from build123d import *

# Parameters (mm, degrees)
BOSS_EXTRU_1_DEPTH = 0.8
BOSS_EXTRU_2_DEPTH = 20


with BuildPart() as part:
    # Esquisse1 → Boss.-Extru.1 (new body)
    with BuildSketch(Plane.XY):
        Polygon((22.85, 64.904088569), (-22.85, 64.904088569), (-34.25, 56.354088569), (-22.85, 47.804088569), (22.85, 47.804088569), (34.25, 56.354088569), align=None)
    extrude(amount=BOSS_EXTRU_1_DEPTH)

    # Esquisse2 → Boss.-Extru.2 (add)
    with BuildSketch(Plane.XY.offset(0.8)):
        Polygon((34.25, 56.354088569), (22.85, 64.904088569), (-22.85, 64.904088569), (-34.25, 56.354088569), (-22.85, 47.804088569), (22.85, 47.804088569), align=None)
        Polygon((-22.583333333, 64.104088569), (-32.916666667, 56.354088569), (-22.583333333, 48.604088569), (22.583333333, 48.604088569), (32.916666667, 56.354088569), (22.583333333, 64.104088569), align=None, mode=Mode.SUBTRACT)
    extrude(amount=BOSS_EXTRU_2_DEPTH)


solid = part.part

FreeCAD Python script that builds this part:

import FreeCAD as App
import Part
import Sketcher
from FreeCAD import Vector
Q = App.Units.Quantity


def add_polygon(sketch, points):
    """Adds a closed chain of lines whose ends are joined by coincident constraints."""
    first, n = sketch.GeometryCount, len(points)
    for a, b in zip(points, points[1:] + points[:1]):
        sketch.addGeometry(Part.LineSegment(App.Vector(*a, 0), App.Vector(*b, 0)), False)
    for i in range(n):
        sketch.addConstraint(Sketcher.Constraint("Coincident", first + i, 2, first + (i + 1) % n, 1))

doc = App.newDocument("Part")
body = doc.addObject("PartDesign::Body", "Body")

# Sketch on XY plane
sketch1 = doc.addObject("Sketcher::SketchObject", "Sketch")
body.addObject(sketch1)
sketch1.AttachmentSupport = (doc.XY_Plane, [""])
sketch1.MapMode = "FlatFace"
add_polygon(sketch1, [(22.85, 64.904089), (-22.85, 64.904089), (-34.25, 56.354089), (-22.85, 47.804089), (22.85, 47.804089), (34.25, 56.354089)])  # lines 0-5
sketch1.addConstraint(Sketcher.Constraint("Horizontal", 0))
sketch1.addConstraint(Sketcher.Constraint("Horizontal", 3))
sketch1.addConstraint(Sketcher.Constraint("Symmetric", 1, 2, 4, 2, -2))
sketch1.addConstraint(Sketcher.Constraint("Parallel", 1, 4))
sketch1.addConstraint(Sketcher.Constraint("Parallel", 2, 5))
sketch1.addConstraint(Sketcher.Constraint("Vertical", 0, 2, 2, 2))
sketch1.addConstraint(Sketcher.Constraint("Vertical", 3, 2, 5, 2))
sketch1.addConstraint(Sketcher.Constraint("DistanceX", 0, 2, 0, 1, Q("45.7 mm")))
sketch1.addConstraint(Sketcher.Constraint("DistanceX", 1, 2, 0, 2, Q("11.4 mm")))
sketch1.addConstraint(Sketcher.Constraint("DistanceY", 2, 2, 0, 2, Q("17.1 mm")))
sketch1.addConstraint(Sketcher.Constraint("DistanceY", -1, 1, 0, 2, Q("64.904089 mm")))
pad1 = doc.addObject("PartDesign::Pad", "Pad")
body.addObject(pad1)
pad1.Profile = sketch1
pad1.Length = 0.8

# Sketch on XY plane
sketch2 = doc.addObject("Sketcher::SketchObject", "Sketch001")
body.addObject(sketch2)
sketch2.AttachmentSupport = (doc.XY_Plane, [""])
sketch2.MapMode = "FlatFace"
sketch2.AttachmentOffset = App.Placement(Vector(0, 0, 0.8), App.Rotation())
add_polygon(sketch2, [(34.25, 56.354089), (22.85, 64.904089), (-22.85, 64.904089), (-34.25, 56.354089), (-22.85, 47.804089), (22.85, 47.804089)])  # lines 0-5
add_polygon(sketch2, [(-32.916667, 56.354089), (-22.583333, 64.104089), (22.583333, 64.104089), (32.916667, 56.354089), (22.583333, 48.604089), (-22.583333, 48.604089)])  # lines 6-11
sketch2.addConstraint(Sketcher.Constraint("Horizontal", 1))
sketch2.addConstraint(Sketcher.Constraint("Horizontal", 4))
sketch2.addConstraint(Sketcher.Constraint("Horizontal", 7))
sketch2.addConstraint(Sketcher.Constraint("Horizontal", 10))
sketch2.addConstraint(Sketcher.Constraint("Symmetric", 2, 2, 5, 2, -2))
sketch2.addConstraint(Sketcher.Constraint("Symmetric", 8, 2, 11, 2, -2))
sketch2.addConstraint(Sketcher.Constraint("Parallel", 0, 3))
sketch2.addConstraint(Sketcher.Constraint("Parallel", 2, 5))
sketch2.addConstraint(Sketcher.Constraint("Parallel", 5, 6))
sketch2.addConstraint(Sketcher.Constraint("Parallel", 3, 8))
sketch2.addConstraint(Sketcher.Constraint("Parallel", 6, 9))
sketch2.addConstraint(Sketcher.Constraint("Parallel", 8, 11))
sketch2.addConstraint(Sketcher.Constraint("Horizontal", 5, 2, 8, 2))
sketch2.addConstraint(Sketcher.Constraint("Vertical", 1, 2, 3, 2))
sketch2.addConstraint(Sketcher.Constraint("Vertical", 0, 2, 4, 2))
sketch2.addConstraint(Sketcher.Constraint("Vertical", 7, 2, 9, 2))
sketch2.addConstraint(Sketcher.Constraint("DistanceX", 1, 2, 1, 1, Q("45.7 mm")))
sketch2.addConstraint(Sketcher.Constraint("DistanceX", 2, 2, 1, 2, Q("11.4 mm")))
sketch2.addConstraint(Sketcher.Constraint("DistanceY", 3, 2, 1, 2, Q("17.1 mm")))
sketch2.addConstraint(Sketcher.Constraint("DistanceY", 6, 2, 1, 2, Q("0.8 mm")))
sketch2.addConstraint(Sketcher.Constraint("DistanceX", 6, 2, 8, 2, Q("55.5 mm")))
sketch2.addConstraint(Sketcher.Constraint("DistanceY", -1, 1, 0, 2, Q("64.904089 mm")))
pad2 = doc.addObject("PartDesign::Pad", "Pad001")
body.addObject(pad2)
pad2.Profile = sketch2
pad2.Length = 20

doc.recompute()
